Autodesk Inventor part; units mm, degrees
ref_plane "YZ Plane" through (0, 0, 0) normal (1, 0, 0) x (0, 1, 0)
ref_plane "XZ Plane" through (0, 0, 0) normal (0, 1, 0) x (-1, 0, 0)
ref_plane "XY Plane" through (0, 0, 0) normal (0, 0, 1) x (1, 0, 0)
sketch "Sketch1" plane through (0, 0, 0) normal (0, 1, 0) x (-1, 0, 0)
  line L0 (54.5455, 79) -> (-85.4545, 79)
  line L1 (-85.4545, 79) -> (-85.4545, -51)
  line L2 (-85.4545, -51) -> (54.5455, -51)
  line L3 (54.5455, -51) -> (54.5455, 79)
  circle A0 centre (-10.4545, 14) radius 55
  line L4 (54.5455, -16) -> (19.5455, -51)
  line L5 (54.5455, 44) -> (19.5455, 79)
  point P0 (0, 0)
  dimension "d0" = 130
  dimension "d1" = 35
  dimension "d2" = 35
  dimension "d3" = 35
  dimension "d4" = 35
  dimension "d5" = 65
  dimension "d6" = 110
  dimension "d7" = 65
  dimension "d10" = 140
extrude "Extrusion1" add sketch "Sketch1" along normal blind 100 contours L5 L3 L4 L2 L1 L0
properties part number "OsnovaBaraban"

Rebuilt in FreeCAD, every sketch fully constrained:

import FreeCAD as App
import Part
import Sketcher

doc = App.newDocument("Part")
body = doc.addObject("PartDesign::Body", "Body")

sketch1 = doc.addObject("Sketcher::SketchObject", "Sketch")
body.addObject(sketch1)
sketch1.AttachmentSupport = (doc.XZ_Plane, [""])
sketch1.MapMode = "FlatFace"
sketch1.addGeometry(Part.LineSegment(App.Vector(-54.5455, 44, 0), App.Vector(-19.5455, 79, 0)), False)
sketch1.addGeometry(Part.LineSegment(App.Vector(-19.5455, 79, 0), App.Vector(85.4545, 79, 0)), False)
sketch1.addGeometry(Part.LineSegment(App.Vector(85.4545, 79, 0), App.Vector(85.4545, -51, 0)), False)
sketch1.addGeometry(Part.LineSegment(App.Vector(85.4545, -51, 0), App.Vector(-19.5455, -51, 0)), False)
sketch1.addGeometry(Part.LineSegment(App.Vector(-19.5455, -51, 0), App.Vector(-54.5455, -16, 0)), False)
sketch1.addGeometry(Part.LineSegment(App.Vector(-54.5455, -16, 0), App.Vector(-54.5455, 44, 0)), False)
sketch1.addGeometry(Part.Circle(App.Vector(10.4545, 14, 0), App.Vector(0, 0, 1), 55), False)
sketch1.addConstraint(Sketcher.Constraint("Coincident", 0, 2, 1, 1))
sketch1.addConstraint(Sketcher.Constraint("Coincident", 1, 2, 2, 1))
sketch1.addConstraint(Sketcher.Constraint("Coincident", 2, 2, 3, 1))
sketch1.addConstraint(Sketcher.Constraint("Coincident", 3, 2, 4, 1))
sketch1.addConstraint(Sketcher.Constraint("Coincident", 4, 2, 5, 1))
sketch1.addConstraint(Sketcher.Constraint("Coincident", 5, 2, 0, 1))
sketch1.addConstraint(Sketcher.Constraint("Horizontal", 1))
sketch1.addConstraint(Sketcher.Constraint("Vertical", 2))
sketch1.addConstraint(Sketcher.Constraint("Horizontal", 3))
sketch1.addConstraint(Sketcher.Constraint("Vertical", 5))
sketch1.addConstraint(Sketcher.Constraint("Perpendicular", 0, 4))
sketch1.addConstraint(Sketcher.Constraint("Vertical", 0, 2, 3, 2))
sketch1.addConstraint(Sketcher.Constraint("Equal", 0, 4))
sketch1.addConstraint(Sketcher.Constraint("Diameter", 6, 110.0))
sketch1.addConstraint(Sketcher.Constraint("DistanceY", 2, 2, 2, 1, 130.0))
sketch1.addConstraint(Sketcher.Constraint("DistanceY", 6, 3, 0, 2, 65.0))
sketch1.addConstraint(Sketcher.Constraint("DistanceX", 4, 2, 3, 2, 35.0))
sketch1.addConstraint(Sketcher.Constraint("DistanceX", 4, 2, 6, 3, 65.0))
sketch1.addConstraint(Sketcher.Constraint("DistanceX", 4, 2, 2, 2, 140.0))
sketch1.addConstraint(Sketcher.Constraint("DistanceY", -1, 1, 6, 3, 14.0))
sketch1.addConstraint(Sketcher.Constraint("DistanceX", -1, 1, 6, 3, 10.4545))
pad1 = doc.addObject("PartDesign::Pad", "Pad")
body.addObject(pad1)
pad1.Profile = sketch1
pad1.Length = 100
pad1.Reversed = True

doc.recompute()
